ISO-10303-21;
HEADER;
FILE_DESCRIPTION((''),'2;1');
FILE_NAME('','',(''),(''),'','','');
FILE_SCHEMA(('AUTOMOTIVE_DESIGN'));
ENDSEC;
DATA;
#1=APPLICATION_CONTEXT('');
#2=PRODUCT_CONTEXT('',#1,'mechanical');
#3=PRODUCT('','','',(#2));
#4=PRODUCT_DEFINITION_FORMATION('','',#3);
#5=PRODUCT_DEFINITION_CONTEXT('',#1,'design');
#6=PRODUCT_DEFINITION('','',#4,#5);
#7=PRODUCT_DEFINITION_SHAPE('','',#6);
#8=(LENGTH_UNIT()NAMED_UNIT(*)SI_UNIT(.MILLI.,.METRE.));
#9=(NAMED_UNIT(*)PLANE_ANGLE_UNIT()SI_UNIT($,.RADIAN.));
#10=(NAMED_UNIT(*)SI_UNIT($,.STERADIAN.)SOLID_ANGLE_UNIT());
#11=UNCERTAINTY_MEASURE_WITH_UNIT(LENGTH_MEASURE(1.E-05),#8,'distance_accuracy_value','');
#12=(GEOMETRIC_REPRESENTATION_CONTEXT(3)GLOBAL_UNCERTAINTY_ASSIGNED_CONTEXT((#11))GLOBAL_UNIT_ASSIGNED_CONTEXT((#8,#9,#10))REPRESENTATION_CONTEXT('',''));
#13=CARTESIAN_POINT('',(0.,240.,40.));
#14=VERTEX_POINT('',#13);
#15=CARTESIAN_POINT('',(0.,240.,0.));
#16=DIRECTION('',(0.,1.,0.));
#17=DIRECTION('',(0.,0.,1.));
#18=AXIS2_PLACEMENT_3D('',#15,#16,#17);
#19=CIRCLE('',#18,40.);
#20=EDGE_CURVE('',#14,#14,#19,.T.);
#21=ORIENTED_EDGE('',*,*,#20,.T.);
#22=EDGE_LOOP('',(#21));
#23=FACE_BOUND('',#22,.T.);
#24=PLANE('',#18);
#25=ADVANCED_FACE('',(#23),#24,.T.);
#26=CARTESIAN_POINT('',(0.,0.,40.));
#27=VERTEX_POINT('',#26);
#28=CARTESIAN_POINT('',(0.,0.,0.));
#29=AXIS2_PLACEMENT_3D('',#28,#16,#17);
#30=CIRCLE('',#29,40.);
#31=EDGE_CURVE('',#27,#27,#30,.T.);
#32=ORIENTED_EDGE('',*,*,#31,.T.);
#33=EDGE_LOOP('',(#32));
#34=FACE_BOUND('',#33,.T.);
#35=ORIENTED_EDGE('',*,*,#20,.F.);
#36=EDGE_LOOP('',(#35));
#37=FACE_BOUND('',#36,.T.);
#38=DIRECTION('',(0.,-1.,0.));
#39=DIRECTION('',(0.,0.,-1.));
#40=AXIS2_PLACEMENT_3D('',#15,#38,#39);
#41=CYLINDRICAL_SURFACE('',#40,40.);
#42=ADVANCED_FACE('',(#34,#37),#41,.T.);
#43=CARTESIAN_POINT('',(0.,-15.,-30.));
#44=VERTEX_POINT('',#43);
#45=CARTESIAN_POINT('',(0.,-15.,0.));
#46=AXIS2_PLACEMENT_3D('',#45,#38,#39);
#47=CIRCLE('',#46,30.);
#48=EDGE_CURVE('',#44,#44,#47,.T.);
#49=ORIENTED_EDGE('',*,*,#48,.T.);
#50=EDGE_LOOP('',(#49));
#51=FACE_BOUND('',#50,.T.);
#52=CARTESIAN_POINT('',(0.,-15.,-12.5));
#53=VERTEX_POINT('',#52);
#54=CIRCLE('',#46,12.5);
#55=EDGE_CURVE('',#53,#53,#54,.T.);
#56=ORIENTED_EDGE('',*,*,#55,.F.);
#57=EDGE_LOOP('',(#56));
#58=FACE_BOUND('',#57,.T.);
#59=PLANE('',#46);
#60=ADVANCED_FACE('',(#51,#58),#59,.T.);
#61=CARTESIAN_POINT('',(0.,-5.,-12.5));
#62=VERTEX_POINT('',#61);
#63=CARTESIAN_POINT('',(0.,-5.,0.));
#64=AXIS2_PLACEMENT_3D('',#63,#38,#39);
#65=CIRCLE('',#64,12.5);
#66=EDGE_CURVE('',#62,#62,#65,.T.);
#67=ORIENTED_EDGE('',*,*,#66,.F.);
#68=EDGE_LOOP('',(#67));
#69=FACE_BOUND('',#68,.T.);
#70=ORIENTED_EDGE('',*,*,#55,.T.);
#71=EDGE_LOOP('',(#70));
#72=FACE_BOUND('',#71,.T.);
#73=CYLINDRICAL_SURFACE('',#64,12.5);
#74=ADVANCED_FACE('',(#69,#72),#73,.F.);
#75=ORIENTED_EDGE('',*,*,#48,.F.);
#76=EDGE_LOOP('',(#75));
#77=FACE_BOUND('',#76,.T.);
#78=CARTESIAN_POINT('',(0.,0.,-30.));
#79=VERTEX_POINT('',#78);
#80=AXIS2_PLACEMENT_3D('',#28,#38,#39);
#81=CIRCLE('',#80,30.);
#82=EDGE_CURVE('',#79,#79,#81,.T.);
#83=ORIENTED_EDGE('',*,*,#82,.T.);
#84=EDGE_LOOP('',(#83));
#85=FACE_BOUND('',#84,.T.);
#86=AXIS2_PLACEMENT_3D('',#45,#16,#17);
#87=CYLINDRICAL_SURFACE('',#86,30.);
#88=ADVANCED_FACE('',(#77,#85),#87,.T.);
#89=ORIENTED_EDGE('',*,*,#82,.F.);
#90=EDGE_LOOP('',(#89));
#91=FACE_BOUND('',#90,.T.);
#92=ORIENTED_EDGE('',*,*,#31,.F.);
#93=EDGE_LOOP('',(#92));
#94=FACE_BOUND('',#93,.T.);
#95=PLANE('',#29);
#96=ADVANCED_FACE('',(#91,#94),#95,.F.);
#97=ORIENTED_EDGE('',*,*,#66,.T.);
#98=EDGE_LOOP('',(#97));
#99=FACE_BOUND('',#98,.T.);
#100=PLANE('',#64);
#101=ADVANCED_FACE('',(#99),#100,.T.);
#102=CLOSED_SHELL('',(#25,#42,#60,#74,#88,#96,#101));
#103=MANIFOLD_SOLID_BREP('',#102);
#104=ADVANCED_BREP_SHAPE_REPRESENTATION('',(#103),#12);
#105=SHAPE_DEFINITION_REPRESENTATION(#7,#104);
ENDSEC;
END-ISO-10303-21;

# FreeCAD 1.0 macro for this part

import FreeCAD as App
import Part
import Sketcher

V = App.Vector
Q = App.Units.Quantity

doc = App.newDocument("Part")
params = doc.addObject("Spreadsheet::Sheet", "Params")
for row, (alias, value) in enumerate([
    ("sketch1_diameter", "80 mm"),
    ("pad1_length", "240 mm"),
    ("sketch2_diameter", "60 mm"),
    ("pad2_length", "15 mm"),
    ("sketch3_diameter", "25 mm"),
    ("pocket1_length", "10 mm"),
], start=1):
    params.set(f"A{row}", alias)
    params.set(f"B{row}", "=" + value)
    params.setAlias(f"B{row}", alias)

body = doc.addObject("PartDesign::Body", "Body")

sketch1 = body.newObject("Sketcher::SketchObject", "Sketch")
sketch1.AttachmentSupport = (doc.getObject("XZ_Plane"), [""])
sketch1.MapMode = "FlatFace"
sketch1.addGeometry(Part.Circle(V(0, 0, 0), V(0, 0, 1), 40), False)
sketch1.addConstraint(Sketcher.Constraint("Coincident", 0, 3, -1, 1))
sketch1.addConstraint(Sketcher.Constraint("Diameter", 0, Q("80 mm")))
sketch1.setExpression("Constraints[1]", "Params.sketch1_diameter")
pad1 = body.newObject("PartDesign::Pad", "Pad")
pad1.Profile = sketch1
pad1.setExpression("Length", "Params.pad1_length")
pad1.Reversed = True

sketch2 = body.newObject("Sketcher::SketchObject", "Sketch001")
sketch2.AttachmentSupport = (doc.getObject("XZ_Plane"), [""])
sketch2.MapMode = "FlatFace"
sketch2.addGeometry(Part.Circle(V(0, 0, 0), V(0, 0, 1), 30), False)
sketch2.addConstraint(Sketcher.Constraint("Coincident", 0, 3, -1, 1))
sketch2.addConstraint(Sketcher.Constraint("Diameter", 0, Q("60 mm")))
sketch2.setExpression("Constraints[1]", "Params.sketch2_diameter")
pad2 = body.newObject("PartDesign::Pad", "Pad001")
pad2.Profile = sketch2
pad2.setExpression("Length", "Params.pad2_length")

sketch3 = body.newObject("Sketcher::SketchObject", "Sketch002")
sketch3.AttachmentSupport = (doc.getObject("XZ_Plane"), [""])
sketch3.MapMode = "FlatFace"
sketch3.AttachmentOffset = App.Placement(V(0, 0, 15), App.Rotation())
sketch3.addGeometry(Part.Circle(V(0, 0, 0), V(0, 0, 1), 12.5), False)
sketch3.addConstraint(Sketcher.Constraint("Coincident", 0, 3, -1, 1))
sketch3.addConstraint(Sketcher.Constraint("Diameter", 0, Q("25 mm")))
sketch3.setExpression("Constraints[1]", "Params.sketch3_diameter")
pocket1 = body.newObject("PartDesign::Pocket", "Pocket")
pocket1.Profile = sketch3
pocket1.setExpression("Length", "Params.pocket1_length")

doc.recompute()
